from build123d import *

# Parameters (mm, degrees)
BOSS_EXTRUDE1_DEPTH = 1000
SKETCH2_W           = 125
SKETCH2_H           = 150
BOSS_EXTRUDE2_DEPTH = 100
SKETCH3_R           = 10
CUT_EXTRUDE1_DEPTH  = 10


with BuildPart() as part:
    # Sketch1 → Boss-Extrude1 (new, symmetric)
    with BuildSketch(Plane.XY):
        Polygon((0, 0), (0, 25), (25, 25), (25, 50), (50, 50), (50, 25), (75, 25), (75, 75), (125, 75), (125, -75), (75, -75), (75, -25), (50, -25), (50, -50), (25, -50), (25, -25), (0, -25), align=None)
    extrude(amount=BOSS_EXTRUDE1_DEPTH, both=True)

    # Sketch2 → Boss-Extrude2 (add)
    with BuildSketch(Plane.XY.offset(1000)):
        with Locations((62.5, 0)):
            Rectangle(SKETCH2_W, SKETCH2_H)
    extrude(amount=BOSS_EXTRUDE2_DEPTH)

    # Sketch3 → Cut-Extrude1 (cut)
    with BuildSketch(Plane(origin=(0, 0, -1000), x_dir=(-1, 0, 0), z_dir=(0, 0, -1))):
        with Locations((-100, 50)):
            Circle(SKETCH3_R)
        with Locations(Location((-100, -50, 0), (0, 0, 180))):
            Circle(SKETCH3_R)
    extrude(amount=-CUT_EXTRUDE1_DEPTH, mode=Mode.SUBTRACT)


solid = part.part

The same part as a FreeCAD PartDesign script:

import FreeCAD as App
import Part
import Sketcher

V = App.Vector
Q = App.Units.Quantity

doc = App.newDocument("Part")
body = doc.addObject("PartDesign::Body", "Body")

# Sketch on XY plane
sketch1 = body.newObject("Sketcher::SketchObject", "Sketch")
sketch1.AttachmentSupport = (doc.getObject("XY_Plane"), [""])
sketch1.MapMode = "FlatFace"
sketch1.addGeometry([
    Part.LineSegment(V(0, 25, 0), V(0, -25, 0)),  # 0
    Part.LineSegment(V(0, -25, 0), V(25, -25, 0)),  # 1
    Part.LineSegment(V(25, -25, 0), V(25, -50, 0)),  # 2
    Part.LineSegment(V(25, -50, 0), V(50, -50, 0)),  # 3
    Part.LineSegment(V(50, -50, 0), V(50, -25, 0)),  # 4
    Part.LineSegment(V(50, -25, 0), V(75, -25, 0)),  # 5
    Part.LineSegment(V(75, -25, 0), V(75, -75, 0)),  # 6
    Part.LineSegment(V(75, -75, 0), V(125, -75, 0)),  # 7
    Part.LineSegment(V(125, -75, 0), V(125, 75, 0)),  # 8
    Part.LineSegment(V(125, 75, 0), V(75, 75, 0)),  # 9
    Part.LineSegment(V(75, 75, 0), V(75, 25, 0)),  # 10
    Part.LineSegment(V(75, 25, 0), V(50, 25, 0)),  # 11
    Part.LineSegment(V(50, 25, 0), V(50, 50, 0)),  # 12
    Part.LineSegment(V(50, 50, 0), V(25, 50, 0)),  # 13
    Part.LineSegment(V(25, 50, 0), V(25, 25, 0)),  # 14
    Part.LineSegment(V(25, 25, 0), V(0, 25, 0)),  # 15
], False)
sketch1.addConstraint([
    Sketcher.Constraint("Coincident", 0, 2, 1, 1),
    Sketcher.Constraint("Coincident", 1, 2, 2, 1),
    Sketcher.Constraint("Coincident", 2, 2, 3, 1),
    Sketcher.Constraint("Coincident", 3, 2, 4, 1),
    Sketcher.Constraint("Coincident", 4, 2, 5, 1),
    Sketcher.Constraint("Coincident", 5, 2, 6, 1),
    Sketcher.Constraint("Coincident", 6, 2, 7, 1),
    Sketcher.Constraint("Coincident", 7, 2, 8, 1),
    Sketcher.Constraint("Coincident", 8, 2, 9, 1),
    Sketcher.Constraint("Coincident", 9, 2, 10, 1),
    Sketcher.Constraint("Coincident", 10, 2, 11, 1),
    Sketcher.Constraint("Coincident", 11, 2, 12, 1),
    Sketcher.Constraint("Coincident", 12, 2, 13, 1),
    Sketcher.Constraint("Coincident", 13, 2, 14, 1),
    Sketcher.Constraint("Coincident", 14, 2, 15, 1),
    Sketcher.Constraint("Coincident", 15, 2, 0, 1),
    Sketcher.Constraint("Vertical", 0),
    Sketcher.Constraint("Horizontal", 1),
    Sketcher.Constraint("Vertical", 2),
    Sketcher.Constraint("Horizontal", 3),
    Sketcher.Constraint("Vertical", 4),
    Sketcher.Constraint("Horizontal", 5),
    Sketcher.Constraint("Vertical", 6),
    Sketcher.Constraint("Horizontal", 7),
    Sketcher.Constraint("Vertical", 8),
    Sketcher.Constraint("Horizontal", 9),
    Sketcher.Constraint("Vertical", 10),
    Sketcher.Constraint("Horizontal", 11),
    Sketcher.Constraint("Vertical", 12),
    Sketcher.Constraint("Horizontal", 13),
    Sketcher.Constraint("Vertical", 14),
    Sketcher.Constraint("Horizontal", 15),
    Sketcher.Constraint("Symmetric", 0, 2, 15, 2, -1, 1),
    Sketcher.Constraint("Symmetric", 6, 2, 9, 2, -1),
    Sketcher.Constraint("Symmetric", 4, 2, 11, 2, -1),
    Sketcher.Constraint("Symmetric", 2, 2, 13, 2, -1),
    Sketcher.Constraint("Horizontal", 1, 2, 4, 2),
    Sketcher.Constraint("Equal", 1, 3),
    Sketcher.Constraint("Equal", 3, 5),
    Sketcher.Constraint("Equal", 9, 0),
    Sketcher.Constraint("Equal", 15, 2),
    Sketcher.Constraint("Equal", 0, 6),
    Sketcher.Constraint("DistanceX", 1, 1, 1, 2, Q("25 mm")),
    Sketcher.Constraint("DistanceX", 7, 1, 7, 2, Q("50 mm")),
])
pad1 = body.newObject("PartDesign::Pad", "Pad")
pad1.Profile = sketch1
pad1.Length = 2000
pad1.Midplane = True

# Sketch on XY plane
sketch2 = body.newObject("Sketcher::SketchObject", "Sketch001")
sketch2.AttachmentSupport = (doc.getObject("XY_Plane"), [""])
sketch2.MapMode = "FlatFace"
sketch2.AttachmentOffset = App.Placement(V(0, 0, 1000), App.Rotation())
sketch2.addGeometry([
    Part.LineSegment(V(0, 75, 0), V(0, -75, 0)),
    Part.LineSegment(V(0, -75, 0), V(125, -75, 0)),
    Part.LineSegment(V(125, -75, 0), V(125, 75, 0)),
    Part.LineSegment(V(125, 75, 0), V(0, 75, 0)),
], False)
sketch2.addConstraint([
    Sketcher.Constraint("Coincident", 0, 2, 1, 1),
    Sketcher.Constraint("Coincident", 1, 2, 2, 1),
    Sketcher.Constraint("Coincident", 2, 2, 3, 1),
    Sketcher.Constraint("Coincident", 3, 2, 0, 1),
    Sketcher.Constraint("Vertical", 0),
    Sketcher.Constraint("Horizontal", 1),
    Sketcher.Constraint("Vertical", 2),
    Sketcher.Constraint("Horizontal", 3),
    Sketcher.Constraint("Symmetric", 0, 2, 3, 2, -1, 1),
    Sketcher.Constraint("DistanceX", 1, 1, 1, 2, Q("125 mm")),
    Sketcher.Constraint("DistanceY", 0, 2, 0, 1, Q("150 mm")),
])
pad2 = body.newObject("PartDesign::Pad", "Pad001")
pad2.Profile = sketch2
pad2.Length = 100

# Sketch on XY plane
sketch3 = body.newObject("Sketcher::SketchObject", "Sketch002")
sketch3.AttachmentSupport = (doc.getObject("XY_Plane"), [""])
sketch3.MapMode = "FlatFace"
sketch3.AttachmentOffset = App.Placement(V(0, 0, -1000), App.Rotation())
sketch3.addGeometry([
    Part.Circle(V(100, 50, 0), V(0, 0, 1), 10),
    Part.Circle(V(100, -50, 0), V(0, 0, 1), 10),
], False)
sketch3.addConstraint([
    Sketcher.Constraint("Equal", 0, 1),
    Sketcher.Constraint("Symmetric", 0, 3, 1, 3, -1),
    Sketcher.Constraint("Diameter", 0, Q("20 mm")),
    Sketcher.Constraint("DistanceX", -1, 1, 0, 3, Q("100 mm")),
    Sketcher.Constraint("DistanceY", -1, 1, 0, 3, Q("50 mm")),
])
pocket1 = body.newObject("PartDesign::Pocket", "Pocket")
pocket1.Profile = sketch3
pocket1.Length = 10
pocket1.Reversed = True

doc.recompute()
